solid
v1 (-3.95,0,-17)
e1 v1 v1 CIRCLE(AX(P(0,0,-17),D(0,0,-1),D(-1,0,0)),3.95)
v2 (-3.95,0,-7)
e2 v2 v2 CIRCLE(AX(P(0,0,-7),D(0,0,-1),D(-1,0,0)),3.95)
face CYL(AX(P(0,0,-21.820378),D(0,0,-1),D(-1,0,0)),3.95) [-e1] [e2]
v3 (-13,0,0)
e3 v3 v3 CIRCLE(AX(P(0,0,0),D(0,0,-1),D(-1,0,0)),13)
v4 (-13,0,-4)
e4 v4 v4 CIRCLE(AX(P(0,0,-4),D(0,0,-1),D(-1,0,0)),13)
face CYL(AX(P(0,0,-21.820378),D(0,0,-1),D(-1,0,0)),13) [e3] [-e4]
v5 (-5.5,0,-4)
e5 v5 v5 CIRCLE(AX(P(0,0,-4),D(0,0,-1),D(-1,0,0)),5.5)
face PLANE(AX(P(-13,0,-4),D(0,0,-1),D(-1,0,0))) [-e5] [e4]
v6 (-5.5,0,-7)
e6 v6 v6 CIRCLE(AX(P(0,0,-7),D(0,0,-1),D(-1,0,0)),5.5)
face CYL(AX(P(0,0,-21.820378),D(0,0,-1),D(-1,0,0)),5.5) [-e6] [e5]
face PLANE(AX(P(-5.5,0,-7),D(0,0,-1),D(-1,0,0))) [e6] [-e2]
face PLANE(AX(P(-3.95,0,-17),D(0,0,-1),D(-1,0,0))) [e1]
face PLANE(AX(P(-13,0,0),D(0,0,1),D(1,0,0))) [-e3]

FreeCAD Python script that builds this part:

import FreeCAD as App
import Part
import Sketcher

V = App.Vector
Q = App.Units.Quantity

doc = App.newDocument("Part")
body = doc.addObject("PartDesign::Body", "Body")

# Sketch on XZ plane
sketch1 = body.newObject("Sketcher::SketchObject", "Sketch")
sketch1.AttachmentSupport = (doc.getObject("XZ_Plane"), [""])
sketch1.MapMode = "FlatFace"
sketch1.addGeometry([
    Part.LineSegment(V(-13, -4, 0), V(-13, 0, 0)),  # 0
    Part.LineSegment(V(-13, 0, 0), V(0, 0, 0)),  # 1
    Part.LineSegment(V(0, 0, 0), V(0, -17, 0)),  # 2
    Part.LineSegment(V(0, -17, 0), V(-4, -17, 0)),  # 3
    Part.LineSegment(V(-4, -17, 0), V(-4, -7, 0)),  # 4
    Part.LineSegment(V(-4, -7, 0), V(-5.5, -7, 0)),  # 5
    Part.LineSegment(V(-5.5, -7, 0), V(-5.5, -4, 0)),  # 6
    Part.LineSegment(V(-5.5, -4, 0), V(-13, -4, 0)),  # 7
], False)
sketch1.addConstraint([
    Sketcher.Constraint("Coincident", 0, 2, 1, 1),
    Sketcher.Constraint("Coincident", 1, 2, 2, 1),
    Sketcher.Constraint("Coincident", 2, 2, 3, 1),
    Sketcher.Constraint("Coincident", 3, 2, 4, 1),
    Sketcher.Constraint("Coincident", 4, 2, 5, 1),
    Sketcher.Constraint("Coincident", 5, 2, 6, 1),
    Sketcher.Constraint("Coincident", 6, 2, 7, 1),
    Sketcher.Constraint("Coincident", 7, 2, 0, 1),
    Sketcher.Constraint("Vertical", 0),
    Sketcher.Constraint("Horizontal", 1),
    Sketcher.Constraint("Vertical", 2),
    Sketcher.Constraint("Horizontal", 3),
    Sketcher.Constraint("Vertical", 4),
    Sketcher.Constraint("Horizontal", 5),
    Sketcher.Constraint("Vertical", 6),
    Sketcher.Constraint("Horizontal", 7),
    Sketcher.Constraint("Coincident", 1, 2, -1, 1),
    Sketcher.Constraint("DistanceX", 1, 1, 1, 2, Q("13 mm")),
    Sketcher.Constraint("DistanceY", 0, 1, 0, 2, Q("4 mm")),
    Sketcher.Constraint("DistanceY", 2, 2, 2, 1, Q("17 mm")),
    Sketcher.Constraint("DistanceY", 4, 1, 4, 2, Q("10 mm")),
    Sketcher.Constraint("DistanceX", 7, 2, 7, 1, Q("7.5 mm")),
    Sketcher.Constraint("DistanceX", 3, 2, 3, 1, Q("3.95 mm")),
])
revolution = body.newObject("PartDesign::Revolution", "Revolution")
revolution.Profile = sketch1
revolution.ReferenceAxis = (sketch1, ["V_Axis"])
revolution.Angle = 360

doc.recompute()
